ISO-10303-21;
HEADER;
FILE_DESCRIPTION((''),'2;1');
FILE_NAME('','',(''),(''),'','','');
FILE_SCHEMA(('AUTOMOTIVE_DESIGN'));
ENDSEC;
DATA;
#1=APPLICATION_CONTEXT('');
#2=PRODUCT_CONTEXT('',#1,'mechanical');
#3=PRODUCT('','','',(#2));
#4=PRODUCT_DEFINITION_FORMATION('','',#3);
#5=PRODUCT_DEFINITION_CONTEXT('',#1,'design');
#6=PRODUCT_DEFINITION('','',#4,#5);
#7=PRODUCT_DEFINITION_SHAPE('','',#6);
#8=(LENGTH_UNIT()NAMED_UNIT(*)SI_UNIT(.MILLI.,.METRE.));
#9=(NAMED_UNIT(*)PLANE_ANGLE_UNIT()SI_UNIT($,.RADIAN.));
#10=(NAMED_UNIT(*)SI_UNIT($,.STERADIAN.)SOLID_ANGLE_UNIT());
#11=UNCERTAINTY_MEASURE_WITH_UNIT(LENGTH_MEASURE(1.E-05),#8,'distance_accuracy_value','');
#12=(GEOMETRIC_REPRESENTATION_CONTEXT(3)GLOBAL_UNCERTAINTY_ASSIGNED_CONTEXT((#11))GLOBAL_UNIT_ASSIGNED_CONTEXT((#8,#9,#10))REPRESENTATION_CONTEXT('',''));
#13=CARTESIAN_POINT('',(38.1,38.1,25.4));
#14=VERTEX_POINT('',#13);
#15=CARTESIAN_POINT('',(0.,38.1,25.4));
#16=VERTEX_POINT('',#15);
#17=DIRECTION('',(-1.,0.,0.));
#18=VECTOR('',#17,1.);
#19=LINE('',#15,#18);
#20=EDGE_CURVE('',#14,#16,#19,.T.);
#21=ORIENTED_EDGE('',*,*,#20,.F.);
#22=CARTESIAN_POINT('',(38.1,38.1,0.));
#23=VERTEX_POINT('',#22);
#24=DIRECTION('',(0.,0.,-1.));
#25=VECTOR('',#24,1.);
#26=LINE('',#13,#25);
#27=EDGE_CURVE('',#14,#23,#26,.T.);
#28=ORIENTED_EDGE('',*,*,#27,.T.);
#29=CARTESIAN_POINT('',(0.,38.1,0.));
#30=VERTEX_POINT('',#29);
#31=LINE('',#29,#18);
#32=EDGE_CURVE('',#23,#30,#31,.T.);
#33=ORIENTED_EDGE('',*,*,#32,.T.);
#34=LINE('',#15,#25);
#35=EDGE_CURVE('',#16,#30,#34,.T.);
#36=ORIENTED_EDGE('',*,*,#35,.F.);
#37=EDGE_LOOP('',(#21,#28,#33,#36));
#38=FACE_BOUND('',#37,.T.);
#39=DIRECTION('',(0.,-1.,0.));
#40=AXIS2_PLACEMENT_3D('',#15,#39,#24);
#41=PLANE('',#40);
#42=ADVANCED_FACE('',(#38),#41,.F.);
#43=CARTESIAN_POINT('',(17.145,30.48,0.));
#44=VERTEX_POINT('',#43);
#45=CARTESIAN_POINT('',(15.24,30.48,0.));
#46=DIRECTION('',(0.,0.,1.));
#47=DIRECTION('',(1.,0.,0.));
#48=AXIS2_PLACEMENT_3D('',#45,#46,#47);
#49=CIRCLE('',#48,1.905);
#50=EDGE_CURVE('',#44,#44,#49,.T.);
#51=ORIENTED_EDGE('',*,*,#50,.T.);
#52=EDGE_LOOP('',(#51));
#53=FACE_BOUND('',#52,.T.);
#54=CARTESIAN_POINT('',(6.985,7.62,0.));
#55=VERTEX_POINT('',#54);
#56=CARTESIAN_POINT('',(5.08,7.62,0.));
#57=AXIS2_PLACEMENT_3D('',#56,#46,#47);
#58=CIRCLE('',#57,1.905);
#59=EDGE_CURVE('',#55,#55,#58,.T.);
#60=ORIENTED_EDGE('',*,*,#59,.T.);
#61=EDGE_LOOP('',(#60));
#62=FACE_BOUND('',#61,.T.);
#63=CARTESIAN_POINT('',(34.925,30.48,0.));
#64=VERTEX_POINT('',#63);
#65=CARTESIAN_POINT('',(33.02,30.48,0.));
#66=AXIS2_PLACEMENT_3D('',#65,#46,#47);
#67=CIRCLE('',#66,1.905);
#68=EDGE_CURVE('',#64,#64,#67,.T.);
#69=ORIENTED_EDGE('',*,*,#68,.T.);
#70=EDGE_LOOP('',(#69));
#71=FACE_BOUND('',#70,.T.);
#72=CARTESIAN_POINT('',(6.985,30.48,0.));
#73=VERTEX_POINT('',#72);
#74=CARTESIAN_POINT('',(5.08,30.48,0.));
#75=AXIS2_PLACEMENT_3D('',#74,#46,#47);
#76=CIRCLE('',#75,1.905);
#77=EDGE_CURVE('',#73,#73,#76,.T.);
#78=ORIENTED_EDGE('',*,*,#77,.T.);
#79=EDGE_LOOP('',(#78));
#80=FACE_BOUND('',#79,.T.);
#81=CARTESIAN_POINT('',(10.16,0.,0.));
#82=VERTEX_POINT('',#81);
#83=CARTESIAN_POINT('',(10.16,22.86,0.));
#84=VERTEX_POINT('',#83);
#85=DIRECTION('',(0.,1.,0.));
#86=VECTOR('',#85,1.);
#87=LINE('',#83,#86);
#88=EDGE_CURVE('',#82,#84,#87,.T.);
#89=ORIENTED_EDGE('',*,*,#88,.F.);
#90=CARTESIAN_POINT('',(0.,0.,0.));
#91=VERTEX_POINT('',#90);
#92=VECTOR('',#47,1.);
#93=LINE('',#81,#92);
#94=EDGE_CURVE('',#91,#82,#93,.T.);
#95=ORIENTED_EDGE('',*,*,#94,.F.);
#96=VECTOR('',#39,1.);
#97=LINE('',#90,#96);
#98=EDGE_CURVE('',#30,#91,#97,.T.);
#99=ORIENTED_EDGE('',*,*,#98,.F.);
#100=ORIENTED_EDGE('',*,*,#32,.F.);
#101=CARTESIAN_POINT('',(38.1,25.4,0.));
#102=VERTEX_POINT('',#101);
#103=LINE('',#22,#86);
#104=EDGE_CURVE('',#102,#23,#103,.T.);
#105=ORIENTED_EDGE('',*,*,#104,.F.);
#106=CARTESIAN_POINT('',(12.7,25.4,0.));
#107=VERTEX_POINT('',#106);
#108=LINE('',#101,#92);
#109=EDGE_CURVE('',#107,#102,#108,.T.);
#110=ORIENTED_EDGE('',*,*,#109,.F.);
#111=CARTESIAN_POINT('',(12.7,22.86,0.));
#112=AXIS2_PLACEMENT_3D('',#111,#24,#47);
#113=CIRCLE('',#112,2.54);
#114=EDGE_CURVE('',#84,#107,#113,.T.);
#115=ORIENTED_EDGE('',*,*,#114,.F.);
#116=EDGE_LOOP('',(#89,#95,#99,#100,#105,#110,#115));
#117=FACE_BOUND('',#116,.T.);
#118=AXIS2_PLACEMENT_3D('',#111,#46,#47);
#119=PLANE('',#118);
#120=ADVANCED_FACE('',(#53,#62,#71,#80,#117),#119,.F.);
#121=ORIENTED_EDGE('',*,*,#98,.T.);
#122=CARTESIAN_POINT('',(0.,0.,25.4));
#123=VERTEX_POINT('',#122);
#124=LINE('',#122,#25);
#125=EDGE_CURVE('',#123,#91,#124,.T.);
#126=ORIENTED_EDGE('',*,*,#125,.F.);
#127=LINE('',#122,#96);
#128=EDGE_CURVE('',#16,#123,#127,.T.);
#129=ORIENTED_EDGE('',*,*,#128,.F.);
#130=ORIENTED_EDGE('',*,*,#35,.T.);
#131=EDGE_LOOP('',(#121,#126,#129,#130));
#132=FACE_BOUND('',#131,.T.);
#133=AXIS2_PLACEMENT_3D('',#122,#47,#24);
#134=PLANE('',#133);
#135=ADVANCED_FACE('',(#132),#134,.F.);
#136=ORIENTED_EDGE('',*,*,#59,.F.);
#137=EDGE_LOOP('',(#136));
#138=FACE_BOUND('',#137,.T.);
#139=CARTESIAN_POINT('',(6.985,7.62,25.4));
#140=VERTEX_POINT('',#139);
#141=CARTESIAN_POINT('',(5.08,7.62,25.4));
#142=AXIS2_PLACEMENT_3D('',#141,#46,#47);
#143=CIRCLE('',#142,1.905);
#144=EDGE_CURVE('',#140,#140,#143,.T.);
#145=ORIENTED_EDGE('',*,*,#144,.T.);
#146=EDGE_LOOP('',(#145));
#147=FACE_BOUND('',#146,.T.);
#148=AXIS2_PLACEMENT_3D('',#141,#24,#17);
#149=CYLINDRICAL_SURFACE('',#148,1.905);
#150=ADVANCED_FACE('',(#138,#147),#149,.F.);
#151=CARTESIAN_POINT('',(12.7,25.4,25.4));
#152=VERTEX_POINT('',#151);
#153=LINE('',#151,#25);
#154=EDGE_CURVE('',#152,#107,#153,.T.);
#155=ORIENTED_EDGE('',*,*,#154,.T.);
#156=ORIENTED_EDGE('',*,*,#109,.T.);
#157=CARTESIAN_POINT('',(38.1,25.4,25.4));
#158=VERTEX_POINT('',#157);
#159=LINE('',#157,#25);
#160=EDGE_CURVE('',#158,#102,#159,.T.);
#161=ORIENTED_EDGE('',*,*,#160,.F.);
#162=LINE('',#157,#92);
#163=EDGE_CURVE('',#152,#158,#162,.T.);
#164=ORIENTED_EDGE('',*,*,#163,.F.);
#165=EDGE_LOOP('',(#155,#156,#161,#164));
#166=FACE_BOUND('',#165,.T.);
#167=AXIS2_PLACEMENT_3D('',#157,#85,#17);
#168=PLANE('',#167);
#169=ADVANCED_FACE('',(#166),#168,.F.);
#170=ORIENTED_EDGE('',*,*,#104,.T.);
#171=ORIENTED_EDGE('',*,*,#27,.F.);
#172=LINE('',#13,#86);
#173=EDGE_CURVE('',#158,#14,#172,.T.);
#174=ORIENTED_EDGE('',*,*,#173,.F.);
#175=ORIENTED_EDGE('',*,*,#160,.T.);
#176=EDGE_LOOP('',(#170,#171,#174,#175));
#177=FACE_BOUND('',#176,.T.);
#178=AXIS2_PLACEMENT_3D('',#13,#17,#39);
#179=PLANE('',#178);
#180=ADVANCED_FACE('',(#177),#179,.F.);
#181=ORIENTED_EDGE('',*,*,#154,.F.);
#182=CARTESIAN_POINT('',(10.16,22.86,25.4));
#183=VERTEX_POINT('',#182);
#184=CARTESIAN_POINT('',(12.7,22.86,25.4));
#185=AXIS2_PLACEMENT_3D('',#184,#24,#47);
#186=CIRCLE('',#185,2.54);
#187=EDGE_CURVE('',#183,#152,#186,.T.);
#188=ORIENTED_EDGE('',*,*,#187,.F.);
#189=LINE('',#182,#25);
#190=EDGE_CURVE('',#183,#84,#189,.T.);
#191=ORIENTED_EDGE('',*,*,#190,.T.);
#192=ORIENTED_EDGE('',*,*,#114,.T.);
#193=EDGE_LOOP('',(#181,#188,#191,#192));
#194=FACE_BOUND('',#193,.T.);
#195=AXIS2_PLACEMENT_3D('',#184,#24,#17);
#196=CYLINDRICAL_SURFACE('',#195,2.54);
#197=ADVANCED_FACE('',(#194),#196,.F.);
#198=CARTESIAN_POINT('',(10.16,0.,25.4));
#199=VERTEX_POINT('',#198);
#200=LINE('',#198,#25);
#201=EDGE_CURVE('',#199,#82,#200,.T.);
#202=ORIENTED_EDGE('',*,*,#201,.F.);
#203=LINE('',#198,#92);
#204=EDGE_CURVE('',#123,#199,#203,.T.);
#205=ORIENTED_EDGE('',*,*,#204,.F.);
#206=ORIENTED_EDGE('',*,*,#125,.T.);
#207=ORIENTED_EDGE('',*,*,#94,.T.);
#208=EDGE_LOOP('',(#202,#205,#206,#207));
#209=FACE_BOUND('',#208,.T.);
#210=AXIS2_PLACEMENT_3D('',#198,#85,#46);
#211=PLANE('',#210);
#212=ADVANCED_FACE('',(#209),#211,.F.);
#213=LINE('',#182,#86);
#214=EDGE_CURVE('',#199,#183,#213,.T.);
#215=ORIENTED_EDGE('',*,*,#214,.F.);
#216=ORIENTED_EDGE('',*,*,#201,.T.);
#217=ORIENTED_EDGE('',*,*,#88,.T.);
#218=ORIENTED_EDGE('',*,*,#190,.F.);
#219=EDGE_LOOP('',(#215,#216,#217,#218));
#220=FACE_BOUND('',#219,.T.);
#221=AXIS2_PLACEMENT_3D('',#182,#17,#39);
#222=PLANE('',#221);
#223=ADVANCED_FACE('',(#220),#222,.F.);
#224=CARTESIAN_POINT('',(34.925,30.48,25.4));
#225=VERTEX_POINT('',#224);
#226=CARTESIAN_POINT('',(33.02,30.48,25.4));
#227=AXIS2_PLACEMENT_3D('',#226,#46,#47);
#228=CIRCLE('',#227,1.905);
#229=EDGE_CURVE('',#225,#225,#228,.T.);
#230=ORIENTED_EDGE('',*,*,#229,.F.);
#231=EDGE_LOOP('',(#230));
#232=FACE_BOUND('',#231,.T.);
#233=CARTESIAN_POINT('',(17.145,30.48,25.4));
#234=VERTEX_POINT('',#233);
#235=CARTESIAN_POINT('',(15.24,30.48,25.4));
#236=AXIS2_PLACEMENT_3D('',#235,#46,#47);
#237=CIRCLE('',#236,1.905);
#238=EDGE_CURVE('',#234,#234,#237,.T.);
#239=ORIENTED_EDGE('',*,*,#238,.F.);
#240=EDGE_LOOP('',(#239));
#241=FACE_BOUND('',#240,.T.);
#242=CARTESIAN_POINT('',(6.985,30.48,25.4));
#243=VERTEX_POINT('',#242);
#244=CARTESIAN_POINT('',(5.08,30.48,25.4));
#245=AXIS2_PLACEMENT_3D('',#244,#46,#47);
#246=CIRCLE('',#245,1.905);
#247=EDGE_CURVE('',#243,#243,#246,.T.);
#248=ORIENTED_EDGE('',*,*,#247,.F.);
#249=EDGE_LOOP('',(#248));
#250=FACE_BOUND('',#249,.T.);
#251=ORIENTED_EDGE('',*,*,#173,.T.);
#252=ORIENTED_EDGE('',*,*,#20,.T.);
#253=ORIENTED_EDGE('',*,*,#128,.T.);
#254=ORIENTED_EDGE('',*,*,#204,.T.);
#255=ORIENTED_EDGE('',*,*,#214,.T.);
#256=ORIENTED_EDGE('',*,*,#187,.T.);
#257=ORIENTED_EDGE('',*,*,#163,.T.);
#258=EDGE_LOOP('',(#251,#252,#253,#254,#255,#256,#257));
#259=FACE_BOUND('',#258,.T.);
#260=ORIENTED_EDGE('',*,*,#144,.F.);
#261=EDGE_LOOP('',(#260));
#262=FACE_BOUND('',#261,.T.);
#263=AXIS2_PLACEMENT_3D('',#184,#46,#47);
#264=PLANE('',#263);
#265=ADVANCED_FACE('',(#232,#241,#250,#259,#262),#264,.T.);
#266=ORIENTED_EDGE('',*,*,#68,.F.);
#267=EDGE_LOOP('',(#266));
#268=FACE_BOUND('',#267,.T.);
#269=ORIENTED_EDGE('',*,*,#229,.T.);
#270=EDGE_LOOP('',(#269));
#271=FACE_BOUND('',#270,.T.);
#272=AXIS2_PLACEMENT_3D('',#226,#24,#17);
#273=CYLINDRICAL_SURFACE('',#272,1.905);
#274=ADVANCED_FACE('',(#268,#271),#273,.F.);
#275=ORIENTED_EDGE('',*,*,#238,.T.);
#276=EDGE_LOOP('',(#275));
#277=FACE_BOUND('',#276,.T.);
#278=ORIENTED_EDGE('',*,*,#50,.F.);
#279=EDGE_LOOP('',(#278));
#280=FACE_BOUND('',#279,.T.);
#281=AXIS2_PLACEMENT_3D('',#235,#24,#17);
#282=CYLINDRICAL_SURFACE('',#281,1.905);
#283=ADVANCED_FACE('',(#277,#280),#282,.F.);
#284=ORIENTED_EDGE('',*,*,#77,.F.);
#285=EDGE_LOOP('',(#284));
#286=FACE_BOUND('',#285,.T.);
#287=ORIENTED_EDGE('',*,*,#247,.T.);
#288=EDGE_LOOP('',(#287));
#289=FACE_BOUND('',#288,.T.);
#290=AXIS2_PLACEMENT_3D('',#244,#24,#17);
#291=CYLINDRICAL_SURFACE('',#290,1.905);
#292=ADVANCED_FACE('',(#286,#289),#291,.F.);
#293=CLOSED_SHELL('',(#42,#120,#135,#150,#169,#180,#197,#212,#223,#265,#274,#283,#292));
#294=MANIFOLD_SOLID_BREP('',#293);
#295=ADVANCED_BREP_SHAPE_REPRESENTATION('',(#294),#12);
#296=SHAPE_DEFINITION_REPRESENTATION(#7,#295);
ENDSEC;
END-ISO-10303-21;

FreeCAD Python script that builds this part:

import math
import FreeCAD as App
import Part
import Sketcher
from FreeCAD import Vector
Q = App.Units.Quantity

doc = App.newDocument("Part")
body = doc.addObject("PartDesign::Body", "Body")

# Sketch on XY plane
sketch1 = body.newObject("Sketcher::SketchObject", "Sketch")
sketch1.AttachmentSupport = (doc.getObject("XY_Plane"), [""])
sketch1.MapMode = "FlatFace"
sketch1.addGeometry(Part.LineSegment(Vector(0, 38.1, 0), Vector(0, 0, 0)), False)
sketch1.addGeometry(Part.LineSegment(Vector(0, 0, 0), Vector(10.2, 0, 0)), False)
sketch1.addGeometry(Part.LineSegment(Vector(10.2, 0, 0), Vector(10.2, 22.9, 0)), False)
sketch1.addGeometry(Part.ArcOfCircle(Part.Circle(Vector(12.7, 22.9, 0), Vector(0, 0, 1), 2.5), math.radians(90), math.radians(180)), False)
sketch1.addGeometry(Part.LineSegment(Vector(12.7, 25.4, 0), Vector(38.1, 25.4, 0)), False)
sketch1.addGeometry(Part.LineSegment(Vector(38.1, 25.4, 0), Vector(38.1, 38.1, 0)), False)
sketch1.addGeometry(Part.LineSegment(Vector(38.1, 38.1, 0), Vector(0, 38.1, 0)), False)
sketch1.addGeometry(Part.Circle(Vector(5.1, 7.6, 0), Vector(0, 0, 1), 1.9), False)
sketch1.addGeometry(Part.Circle(Vector(33, 30.5, 0), Vector(0, 0, 1), 1.9), False)
sketch1.addGeometry(Part.Circle(Vector(15.2, 30.5, 0), Vector(0, 0, 1), 1.9), False)
sketch1.addGeometry(Part.Circle(Vector(5.1, 30.5, 0), Vector(0, 0, 1), 1.9), False)
sketch1.addConstraint(Sketcher.Constraint("Coincident", 0, 2, 1, 1))
sketch1.addConstraint(Sketcher.Constraint("Coincident", 1, 2, 2, 1))
sketch1.addConstraint(Sketcher.Constraint("Tangent", 2, 2, 3, 2))
sketch1.addConstraint(Sketcher.Constraint("Tangent", 3, 1, 4, 1))
sketch1.addConstraint(Sketcher.Constraint("Coincident", 4, 2, 5, 1))
sketch1.addConstraint(Sketcher.Constraint("Coincident", 5, 2, 6, 1))
sketch1.addConstraint(Sketcher.Constraint("Coincident", 6, 2, 0, 1))
sketch1.addConstraint(Sketcher.Constraint("Vertical", 0))
sketch1.addConstraint(Sketcher.Constraint("Horizontal", 1))
sketch1.addConstraint(Sketcher.Constraint("Vertical", 2))
sketch1.addConstraint(Sketcher.Constraint("Horizontal", 4))
sketch1.addConstraint(Sketcher.Constraint("Vertical", 5))
sketch1.addConstraint(Sketcher.Constraint("Horizontal", 6))
sketch1.addConstraint(Sketcher.Constraint("Coincident", 0, 2, -1, 1))
sketch1.addConstraint(Sketcher.Constraint("Equal", 7, 8))
sketch1.addConstraint(Sketcher.Constraint("Equal", 8, 9))
sketch1.addConstraint(Sketcher.Constraint("Equal", 9, 10))
sketch1.addConstraint(Sketcher.Constraint("Horizontal", 8, 3, 9, 3))
sketch1.addConstraint(Sketcher.Constraint("Horizontal", 9, 3, 10, 3))
sketch1.addConstraint(Sketcher.Constraint("Vertical", 7, 3, 10, 3))
sketch1.addConstraint(Sketcher.Constraint("Equal", 6, 0))
sketch1.addConstraint(Sketcher.Constraint("Radius", 3, Q("0.1 in")))
sketch1.addConstraint(Sketcher.Constraint("Diameter", 7, Q("0.15 in")))
sketch1.addConstraint(Sketcher.Constraint("DistanceX", 4, 1, 4, 2, Q("1 in")))
sketch1.addConstraint(Sketcher.Constraint("DistanceX", 1, 1, 1, 2, Q("0.4 in")))
sketch1.addConstraint(Sketcher.Constraint("DistanceY", 2, 1, 2, 2, Q("0.9 in")))
sketch1.addConstraint(Sketcher.Constraint("DistanceX", -1, 1, 7, 3, Q("0.2 in")))
sketch1.addConstraint(Sketcher.Constraint("DistanceY", -1, 1, 7, 3, Q("0.3 in")))
sketch1.addConstraint(Sketcher.Constraint("DistanceX", -1, 1, 8, 3, Q("1.3 in")))
sketch1.addConstraint(Sketcher.Constraint("DistanceY", -1, 1, 8, 3, Q("1.2 in")))
sketch1.addConstraint(Sketcher.Constraint("DistanceX", -1, 1, 9, 3, Q("0.6 in")))
pad1 = body.newObject("PartDesign::Pad", "Pad")
pad1.Profile = sketch1
pad1.Length = Q("1 in")

doc.recompute()
